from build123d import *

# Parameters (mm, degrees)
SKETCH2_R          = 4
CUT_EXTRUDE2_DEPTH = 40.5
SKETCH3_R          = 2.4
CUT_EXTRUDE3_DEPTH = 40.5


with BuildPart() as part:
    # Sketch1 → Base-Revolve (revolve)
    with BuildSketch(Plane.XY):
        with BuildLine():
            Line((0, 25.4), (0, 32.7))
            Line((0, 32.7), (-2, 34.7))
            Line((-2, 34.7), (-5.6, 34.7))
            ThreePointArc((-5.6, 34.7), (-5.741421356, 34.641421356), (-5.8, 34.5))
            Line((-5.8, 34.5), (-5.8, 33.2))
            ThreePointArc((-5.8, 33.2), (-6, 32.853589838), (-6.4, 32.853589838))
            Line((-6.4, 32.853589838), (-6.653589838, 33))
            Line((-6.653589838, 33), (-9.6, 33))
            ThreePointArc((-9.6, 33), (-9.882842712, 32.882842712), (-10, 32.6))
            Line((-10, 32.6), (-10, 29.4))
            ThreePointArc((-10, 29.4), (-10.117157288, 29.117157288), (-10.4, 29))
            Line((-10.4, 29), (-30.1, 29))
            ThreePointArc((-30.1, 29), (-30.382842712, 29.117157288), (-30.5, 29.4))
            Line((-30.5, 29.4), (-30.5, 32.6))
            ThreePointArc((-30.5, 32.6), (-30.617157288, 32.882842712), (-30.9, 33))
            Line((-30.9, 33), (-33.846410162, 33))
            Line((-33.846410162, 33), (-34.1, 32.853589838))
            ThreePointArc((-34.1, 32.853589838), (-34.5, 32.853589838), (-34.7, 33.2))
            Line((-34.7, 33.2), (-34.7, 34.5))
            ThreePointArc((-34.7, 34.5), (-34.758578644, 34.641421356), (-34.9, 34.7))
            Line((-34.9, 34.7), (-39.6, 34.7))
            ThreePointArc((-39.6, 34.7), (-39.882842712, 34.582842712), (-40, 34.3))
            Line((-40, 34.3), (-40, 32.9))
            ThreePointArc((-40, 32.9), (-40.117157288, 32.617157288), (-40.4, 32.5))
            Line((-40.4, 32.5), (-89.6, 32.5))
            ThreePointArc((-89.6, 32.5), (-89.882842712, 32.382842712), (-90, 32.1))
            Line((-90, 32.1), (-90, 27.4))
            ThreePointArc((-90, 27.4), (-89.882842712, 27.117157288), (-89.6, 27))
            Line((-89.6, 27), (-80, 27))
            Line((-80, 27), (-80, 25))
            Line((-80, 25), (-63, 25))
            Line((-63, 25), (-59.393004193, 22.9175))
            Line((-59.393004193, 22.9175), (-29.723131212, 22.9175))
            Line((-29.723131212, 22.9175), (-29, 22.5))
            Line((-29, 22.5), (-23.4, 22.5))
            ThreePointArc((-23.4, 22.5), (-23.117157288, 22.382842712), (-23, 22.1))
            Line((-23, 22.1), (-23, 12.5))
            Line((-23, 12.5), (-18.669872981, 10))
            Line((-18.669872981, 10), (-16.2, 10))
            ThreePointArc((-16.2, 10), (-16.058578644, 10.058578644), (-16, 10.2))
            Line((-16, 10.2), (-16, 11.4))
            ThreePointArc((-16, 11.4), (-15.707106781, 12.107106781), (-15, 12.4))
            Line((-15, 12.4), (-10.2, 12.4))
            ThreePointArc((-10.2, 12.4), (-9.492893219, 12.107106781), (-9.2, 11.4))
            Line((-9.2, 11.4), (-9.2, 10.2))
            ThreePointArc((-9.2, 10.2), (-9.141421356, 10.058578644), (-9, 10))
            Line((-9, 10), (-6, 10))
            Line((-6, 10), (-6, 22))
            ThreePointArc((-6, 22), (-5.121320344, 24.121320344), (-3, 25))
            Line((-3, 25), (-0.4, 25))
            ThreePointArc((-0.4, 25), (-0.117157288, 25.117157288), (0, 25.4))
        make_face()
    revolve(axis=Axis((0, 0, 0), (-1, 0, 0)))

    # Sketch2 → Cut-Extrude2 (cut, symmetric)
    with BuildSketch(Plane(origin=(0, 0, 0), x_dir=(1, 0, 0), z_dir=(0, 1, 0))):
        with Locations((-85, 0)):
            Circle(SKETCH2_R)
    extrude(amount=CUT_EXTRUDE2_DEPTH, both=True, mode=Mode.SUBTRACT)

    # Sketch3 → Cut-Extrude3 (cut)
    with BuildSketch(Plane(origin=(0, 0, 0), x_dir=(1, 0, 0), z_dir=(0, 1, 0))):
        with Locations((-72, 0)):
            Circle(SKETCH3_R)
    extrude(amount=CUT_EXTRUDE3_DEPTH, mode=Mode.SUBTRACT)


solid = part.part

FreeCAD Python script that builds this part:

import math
import FreeCAD as App
import Part
import Sketcher
Q = App.Units.Quantity

doc = App.newDocument("Part")
body = doc.addObject("PartDesign::Body", "Body")

# Sketch on XY plane
sketch1 = body.newObject("Sketcher::SketchObject", "Sketch")
sketch1.AttachmentSupport = (doc.getObject("XY_Plane"), [""])
sketch1.MapMode = "FlatFace"
sketch1.addGeometry([
    Part.LineSegment(App.Vector(0, 25.4, 0), App.Vector(0, 32.7, 0)),  # 0
    Part.LineSegment(App.Vector(0, 32.7, 0), App.Vector(-2, 34.7, 0)),  # 1
    Part.LineSegment(App.Vector(-2, 34.7, 0), App.Vector(-5.6, 34.7, 0)),  # 2
    Part.ArcOfCircle(Part.Circle(App.Vector(-5.6, 34.5, 0), App.Vector(0, 0, 1), 0.2), math.radians(90), math.radians(180)),  # 3
    Part.LineSegment(App.Vector(-5.8, 34.5, 0), App.Vector(-5.8, 33.2, 0)),  # 4
    Part.ArcOfCircle(Part.Circle(App.Vector(-6.2, 33.2, 0), App.Vector(0, 0, 1), 0.4), math.radians(-120), math.radians(0)),  # 5
    Part.LineSegment(App.Vector(-6.4, 32.85359, 0), App.Vector(-6.65359, 33, 0)),  # 6
    Part.LineSegment(App.Vector(-6.65359, 33, 0), App.Vector(-9.6, 33, 0)),  # 7
    Part.ArcOfCircle(Part.Circle(App.Vector(-9.6, 32.6, 0), App.Vector(0, 0, 1), 0.4), math.radians(90), math.radians(180)),  # 8
    Part.LineSegment(App.Vector(-10, 32.6, 0), App.Vector(-10, 29.4, 0)),  # 9
    Part.ArcOfCircle(Part.Circle(App.Vector(-10.4, 29.4, 0), App.Vector(0, 0, 1), 0.4), math.radians(-90), math.radians(0)),  # 10
    Part.LineSegment(App.Vector(-10.4, 29, 0), App.Vector(-30.1, 29, 0)),  # 11
    Part.ArcOfCircle(Part.Circle(App.Vector(-30.1, 29.4, 0), App.Vector(0, 0, 1), 0.4), math.radians(-180), math.radians(-90)),  # 12
    Part.LineSegment(App.Vector(-30.5, 29.4, 0), App.Vector(-30.5, 32.6, 0)),  # 13
    Part.ArcOfCircle(Part.Circle(App.Vector(-30.9, 32.6, 0), App.Vector(0, 0, 1), 0.4), math.radians(0), math.radians(90)),  # 14
    Part.LineSegment(App.Vector(-30.9, 33, 0), App.Vector(-33.84641, 33, 0)),  # 15
    Part.LineSegment(App.Vector(-33.84641, 33, 0), App.Vector(-34.1, 32.85359, 0)),  # 16
    Part.ArcOfCircle(Part.Circle(App.Vector(-34.3, 33.2, 0), App.Vector(0, 0, 1), 0.4), math.radians(180), math.radians(300)),  # 17
    Part.LineSegment(App.Vector(-34.7, 33.2, 0), App.Vector(-34.7, 34.5, 0)),  # 18
    Part.ArcOfCircle(Part.Circle(App.Vector(-34.9, 34.5, 0), App.Vector(0, 0, 1), 0.2), math.radians(0), math.radians(90)),  # 19
    Part.LineSegment(App.Vector(-34.9, 34.7, 0), App.Vector(-39.6, 34.7, 0)),  # 20
    Part.ArcOfCircle(Part.Circle(App.Vector(-39.6, 34.3, 0), App.Vector(0, 0, 1), 0.4), math.radians(90), math.radians(180)),  # 21
    Part.LineSegment(App.Vector(-40, 34.3, 0), App.Vector(-40, 32.9, 0)),  # 22
    Part.ArcOfCircle(Part.Circle(App.Vector(-40.4, 32.9, 0), App.Vector(0, 0, 1), 0.4), math.radians(-90), math.radians(0)),  # 23
    Part.LineSegment(App.Vector(-40.4, 32.5, 0), App.Vector(-89.6, 32.5, 0)),  # 24
    Part.ArcOfCircle(Part.Circle(App.Vector(-89.6, 32.1, 0), App.Vector(0, 0, 1), 0.4), math.radians(90), math.radians(180)),  # 25
    Part.LineSegment(App.Vector(-90, 32.1, 0), App.Vector(-90, 27.4, 0)),  # 26
    Part.ArcOfCircle(Part.Circle(App.Vector(-89.6, 27.4, 0), App.Vector(0, 0, 1), 0.4), math.radians(-180), math.radians(-90)),  # 27
    Part.LineSegment(App.Vector(-89.6, 27, 0), App.Vector(-80, 27, 0)),  # 28
    Part.LineSegment(App.Vector(-80, 27, 0), App.Vector(-80, 25, 0)),  # 29
    Part.LineSegment(App.Vector(-80, 25, 0), App.Vector(-63, 25, 0)),  # 30
    Part.LineSegment(App.Vector(-63, 25, 0), App.Vector(-59.393004, 22.9175, 0)),  # 31
    Part.LineSegment(App.Vector(-59.393004, 22.9175, 0), App.Vector(-29.723131, 22.9175, 0)),  # 32
    Part.LineSegment(App.Vector(-29.723131, 22.9175, 0), App.Vector(-29, 22.5, 0)),  # 33
    Part.LineSegment(App.Vector(-29, 22.5, 0), App.Vector(-23.4, 22.5, 0)),  # 34
    Part.ArcOfCircle(Part.Circle(App.Vector(-23.4, 22.1, 0), App.Vector(0, 0, 1), 0.4), math.radians(0), math.radians(90)),  # 35
    Part.LineSegment(App.Vector(-23, 22.1, 0), App.Vector(-23, 12.5, 0)),  # 36
    Part.LineSegment(App.Vector(-23, 12.5, 0), App.Vector(-18.669873, 10, 0)),  # 37
    Part.LineSegment(App.Vector(-18.669873, 10, 0), App.Vector(-16.2, 10, 0)),  # 38
    Part.ArcOfCircle(Part.Circle(App.Vector(-16.2, 10.2, 0), App.Vector(0, 0, 1), 0.2), math.radians(-90), math.radians(0)),  # 39
    Part.LineSegment(App.Vector(-16, 10.2, 0), App.Vector(-16, 11.4, 0)),  # 40
    Part.ArcOfCircle(Part.Circle(App.Vector(-15, 11.4, 0), App.Vector(0, 0, 1), 1), math.radians(90), math.radians(180)),  # 41
    Part.LineSegment(App.Vector(-15, 12.4, 0), App.Vector(-10.2, 12.4, 0)),  # 42
    Part.ArcOfCircle(Part.Circle(App.Vector(-10.2, 11.4, 0), App.Vector(0, 0, 1), 1), math.radians(0), math.radians(90)),  # 43
    Part.LineSegment(App.Vector(-9.2, 11.4, 0), App.Vector(-9.2, 10.2, 0)),  # 44
    Part.ArcOfCircle(Part.Circle(App.Vector(-9, 10.2, 0), App.Vector(0, 0, 1), 0.2), math.radians(-180), math.radians(-90)),  # 45
    Part.LineSegment(App.Vector(-9, 10, 0), App.Vector(-6, 10, 0)),  # 46
    Part.LineSegment(App.Vector(-6, 10, 0), App.Vector(-6, 22, 0)),  # 47
    Part.ArcOfCircle(Part.Circle(App.Vector(-3, 22, 0), App.Vector(0, 0, 1), 3), math.radians(90), math.radians(180)),  # 48
    Part.LineSegment(App.Vector(-3, 25, 0), App.Vector(-0.4, 25, 0)),  # 49
    Part.ArcOfCircle(Part.Circle(App.Vector(-0.4, 25.4, 0), App.Vector(0, 0, 1), 0.4), math.radians(-90), math.radians(0)),  # 50
], False)
sketch1.addConstraint([
    Sketcher.Constraint("Coincident", 0, 2, 1, 1),
    Sketcher.Constraint("Coincident", 1, 2, 2, 1),
    Sketcher.Constraint("Tangent", 2, 2, 3, 1),
    Sketcher.Constraint("Tangent", 3, 2, 4, 1),
    Sketcher.Constraint("Tangent", 4, 2, 5, 2),
    Sketcher.Constraint("Tangent", 5, 1, 6, 1),
    Sketcher.Constraint("Coincident", 6, 2, 7, 1),
    Sketcher.Constraint("Tangent", 7, 2, 8, 1),
    Sketcher.Constraint("Tangent", 8, 2, 9, 1),
    Sketcher.Constraint("Tangent", 9, 2, 10, 2),
    Sketcher.Constraint("Tangent", 10, 1, 11, 1),
    Sketcher.Constraint("Tangent", 11, 2, 12, 2),
    Sketcher.Constraint("Tangent", 12, 1, 13, 1),
    Sketcher.Constraint("Tangent", 13, 2, 14, 1),
    Sketcher.Constraint("Tangent", 14, 2, 15, 1),
    Sketcher.Constraint("Coincident", 15, 2, 16, 1),
    Sketcher.Constraint("Tangent", 16, 2, 17, 2),
    Sketcher.Constraint("Tangent", 17, 1, 18, 1),
    Sketcher.Constraint("Tangent", 18, 2, 19, 1),
    Sketcher.Constraint("Tangent", 19, 2, 20, 1),
    Sketcher.Constraint("Tangent", 20, 2, 21, 1),
    Sketcher.Constraint("Tangent", 21, 2, 22, 1),
    Sketcher.Constraint("Tangent", 22, 2, 23, 2),
    Sketcher.Constraint("Tangent", 23, 1, 24, 1),
    Sketcher.Constraint("Tangent", 24, 2, 25, 1),
    Sketcher.Constraint("Tangent", 25, 2, 26, 1),
    Sketcher.Constraint("Tangent", 26, 2, 27, 1),
    Sketcher.Constraint("Tangent", 27, 2, 28, 1),
    Sketcher.Constraint("Coincident", 28, 2, 29, 1),
    Sketcher.Constraint("Coincident", 29, 2, 30, 1),
    Sketcher.Constraint("Coincident", 30, 2, 31, 1),
    Sketcher.Constraint("Coincident", 31, 2, 32, 1),
    Sketcher.Constraint("Coincident", 32, 2, 33, 1),
    Sketcher.Constraint("Coincident", 33, 2, 34, 1),
    Sketcher.Constraint("Tangent", 34, 2, 35, 2),
    Sketcher.Constraint("Tangent", 35, 1, 36, 1),
    Sketcher.Constraint("Coincident", 36, 2, 37, 1),
    Sketcher.Constraint("Coincident", 37, 2, 38, 1),
    Sketcher.Constraint("Tangent", 38, 2, 39, 1),
    Sketcher.Constraint("Tangent", 39, 2, 40, 1),
    Sketcher.Constraint("Tangent", 40, 2, 41, 2),
    Sketcher.Constraint("Tangent", 41, 1, 42, 1),
    Sketcher.Constraint("Tangent", 42, 2, 43, 2),
    Sketcher.Constraint("Tangent", 43, 1, 44, 1),
    Sketcher.Constraint("Tangent", 44, 2, 45, 1),
    Sketcher.Constraint("Tangent", 45, 2, 46, 1),
    Sketcher.Constraint("Coincident", 46, 2, 47, 1),
    Sketcher.Constraint("Tangent", 47, 2, 48, 2),
    Sketcher.Constraint("Tangent", 48, 1, 49, 1),
    Sketcher.Constraint("Tangent", 49, 2, 50, 1),
    Sketcher.Constraint("Tangent", 50, 2, 0, 1),
    Sketcher.Constraint("Vertical", 0),
    Sketcher.Constraint("Horizontal", 2),
    Sketcher.Constraint("Vertical", 4),
    Sketcher.Constraint("Horizontal", 7),
    Sketcher.Constraint("Vertical", 9),
    Sketcher.Constraint("Horizontal", 11),
    Sketcher.Constraint("Vertical", 13),
    Sketcher.Constraint("Horizontal", 15),
    Sketcher.Constraint("Vertical", 18),
    Sketcher.Constraint("Horizontal", 20),
    Sketcher.Constraint("Vertical", 22),
    Sketcher.Constraint("Horizontal", 24),
    Sketcher.Constraint("Vertical", 26),
    Sketcher.Constraint("Horizontal", 28),
    Sketcher.Constraint("Vertical", 29),
    Sketcher.Constraint("Horizontal", 30),
    Sketcher.Constraint("Horizontal", 32),
    Sketcher.Constraint("Horizontal", 34),
    Sketcher.Constraint("Vertical", 36),
    Sketcher.Constraint("Horizontal", 38),
    Sketcher.Constraint("Vertical", 40),
    Sketcher.Constraint("Horizontal", 42),
    Sketcher.Constraint("Vertical", 44),
    Sketcher.Constraint("Horizontal", 46),
    Sketcher.Constraint("Vertical", 47),
    Sketcher.Constraint("Horizontal", 49),
    Sketcher.Constraint("Equal", 5, 8),
    Sketcher.Constraint("Equal", 8, 10),
    Sketcher.Constraint("Equal", 10, 12),
    Sketcher.Constraint("Equal", 12, 14),
    Sketcher.Constraint("Equal", 14, 17),
    Sketcher.Constraint("Equal", 3, 19),
    Sketcher.Constraint("Equal", 17, 21),
    Sketcher.Constraint("Equal", 21, 23),
    Sketcher.Constraint("Equal", 23, 25),
    Sketcher.Constraint("Equal", 25, 27),
    Sketcher.Constraint("Equal", 27, 35),
    Sketcher.Constraint("Equal", 19, 39),
    Sketcher.Constraint("Equal", 41, 43),
    Sketcher.Constraint("Equal", 39, 45),
    Sketcher.Constraint("Equal", 35, 50),
    Sketcher.Constraint("PointOnObject", 0, 2, -2),
    Sketcher.Constraint("Parallel", 6, 31),
    Sketcher.Constraint("Parallel", 31, 33),
    Sketcher.Constraint("Parallel", 33, 37),
    Sketcher.Constraint("Horizontal", 8, 3, 14, 3),
    Sketcher.Constraint("Horizontal", 5, 3, 17, 3),
    Sketcher.Constraint("Horizontal", 3, 3, 19, 3),
    Sketcher.Constraint("Horizontal", 39, 3, 45, 3),
    Sketcher.Constraint("Horizontal", 5, 1, 16, 2),
    Sketcher.Constraint("Horizontal", 30, 2, 48, 1),
    Sketcher.Constraint("Equal", 7, 15),
    Sketcher.Constraint("Equal", 20, 26),
    Sketcher.Constraint("Equal", 28, 36),
    Sketcher.Constraint("Radius", 41, Q("1 mm")),
    Sketcher.Constraint("Radius", 48, Q("3 mm")),
    Sketcher.Constraint("Radius", 3, Q("0.2 mm")),
    Sketcher.Constraint("Radius", 5, Q("0.4 mm")),
    Sketcher.Constraint("DistanceX", 30, 1, 30, 2, Q("17 mm")),
    Sketcher.Constraint("DistanceX", 46, 1, 46, 2, Q("3 mm")),
    Sketcher.Constraint("DistanceY", 29, 2, 29, 1, Q("2 mm")),
    Sketcher.Constraint("DistanceY", 47, 1, 47, 2, Q("12 mm")),
    Sketcher.Constraint("Angle", 1, Q("135 deg")),
    Sketcher.Constraint("Angle", 6, Q("150 deg")),
    Sketcher.Constraint("Distance", 37, Q("5 mm")),
    Sketcher.Constraint("DistanceX", 2, 2, 2, 1, Q("3.6 mm")),
    Sketcher.Constraint("DistanceX", 11, 2, 11, 1, Q("19.7 mm")),
    Sketcher.Constraint("DistanceX", 20, 2, 20, 1, Q("4.7 mm")),
    Sketcher.Constraint("DistanceX", 24, 2, 24, 1, Q("49.2 mm")),
    Sketcher.Constraint("DistanceX", 28, 1, 28, 2, Q("9.6 mm")),
    Sketcher.Constraint("DistanceX", 34, 1, 34, 2, Q("5.6 mm")),
    Sketcher.Constraint("DistanceX", 42, 1, 42, 2, Q("4.8 mm")),
    Sketcher.Constraint("DistanceX", 49, 1, 49, 2, Q("2.6 mm")),
    Sketcher.Constraint("DistanceY", 0, 1, 0, 2, Q("7.3 mm")),
    Sketcher.Constraint("DistanceY", 4, 2, 4, 1, Q("1.3 mm")),
    Sketcher.Constraint("DistanceY", 9, 2, 9, 1, Q("3.2 mm")),
    Sketcher.Constraint("DistanceY", 22, 2, 22, 1, Q("1.4 mm")),
    Sketcher.Constraint("DistanceY", 40, 1, 40, 2, Q("1.2 mm")),
    Sketcher.Constraint("DistanceY", -1, 1, 48, 3, Q("22 mm")),
    Sketcher.Constraint("DistanceY", -1, 1, 6, 2, Q("33 mm")),
    Sketcher.Constraint("DistanceX", 8, 2, -1, 1, Q("10 mm")),
    Sketcher.Constraint("DistanceX", 33, 2, -1, 1, Q("29 mm")),
    Sketcher.Constraint("Distance", 31, Q("4.165 mm")),
])
revolution = body.newObject("PartDesign::Revolution", "Revolution")
revolution.Profile = sketch1
revolution.ReferenceAxis = (sketch1, ["H_Axis"])
revolution.Angle = 360

# Sketch on XZ plane
sketch2 = body.newObject("Sketcher::SketchObject", "Sketch001")
sketch2.AttachmentSupport = (doc.getObject("XZ_Plane"), [""])
sketch2.MapMode = "FlatFace"
sketch2.addGeometry(Part.Circle(App.Vector(-85, 0, 0), App.Vector(0, 0, 1), 4), False)
sketch2.addConstraint([
    Sketcher.Constraint("PointOnObject", 0, 3, -1),
    Sketcher.Constraint("Diameter", 0, Q("8 mm")),
    Sketcher.Constraint("DistanceX", 0, 3, -1, 1, Q("85 mm")),
])
pocket1 = body.newObject("PartDesign::Pocket", "Pocket")
pocket1.Profile = sketch2
pocket1.Length = 81
pocket1.Midplane = True

# Sketch on XZ plane
sketch3 = body.newObject("Sketcher::SketchObject", "Sketch002")
sketch3.AttachmentSupport = (doc.getObject("XZ_Plane"), [""])
sketch3.MapMode = "FlatFace"
sketch3.addGeometry(Part.Circle(App.Vector(-72, 0, 0), App.Vector(0, 0, 1), 2.4), False)
sketch3.addConstraint([
    Sketcher.Constraint("PointOnObject", 0, 3, -1),
    Sketcher.Constraint("Diameter", 0, Q("4.8 mm")),
    Sketcher.Constraint("DistanceX", 0, 3, -1, 1, Q("72 mm")),
])
pocket2 = body.newObject("PartDesign::Pocket", "Pocket001")
pocket2.Profile = sketch3
pocket2.Length = 40.5

doc.recompute()
